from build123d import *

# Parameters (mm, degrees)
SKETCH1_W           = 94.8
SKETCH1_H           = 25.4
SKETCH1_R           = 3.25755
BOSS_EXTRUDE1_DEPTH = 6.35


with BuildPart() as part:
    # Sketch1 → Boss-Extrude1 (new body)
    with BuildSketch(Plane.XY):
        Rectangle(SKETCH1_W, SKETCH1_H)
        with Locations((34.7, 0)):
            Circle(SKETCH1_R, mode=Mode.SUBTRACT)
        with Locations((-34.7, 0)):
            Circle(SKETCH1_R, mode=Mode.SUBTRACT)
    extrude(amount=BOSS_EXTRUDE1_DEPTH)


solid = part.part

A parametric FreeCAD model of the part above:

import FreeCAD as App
import Part
import Sketcher

V = App.Vector
Q = App.Units.Quantity

doc = App.newDocument("Part")
params = doc.addObject("Spreadsheet::Sheet", "Params")
for row, (alias, value) in enumerate([
    ("sketch1_height", "1 in"),
    ("pad1_length", "0.25 in"),
], start=1):
    params.set(f"A{row}", alias)
    params.set(f"B{row}", "=" + value)
    params.setAlias(f"B{row}", alias)

body = doc.addObject("PartDesign::Body", "Body")

# Sketch on XY plane
sketch1 = doc.addObject("Sketcher::SketchObject", "Sketch")
body.addObject(sketch1)
sketch1.AttachmentSupport = (doc.XY_Plane, [""])
sketch1.MapMode = "FlatFace"
sketch1.addGeometry([
    Part.LineSegment(V(-47.4, 12.7, 0), V(-47.4, -12.7, 0)),  # 0
    Part.LineSegment(V(-47.4, -12.7, 0), V(47.4, -12.7, 0)),  # 1
    Part.LineSegment(V(47.4, -12.7, 0), V(47.4, 12.7, 0)),  # 2
    Part.LineSegment(V(47.4, 12.7, 0), V(-47.4, 12.7, 0)),  # 3
    Part.Circle(V(-34.7, 0, 0), V(0, 0, 1), 3.25755),  # 4
    Part.Circle(V(34.7, 0, 0), V(0, 0, 1), 3.25755),  # 5
], False)
sketch1.addConstraint([
    Sketcher.Constraint("Coincident", 0, 2, 1, 1),
    Sketcher.Constraint("Coincident", 1, 2, 2, 1),
    Sketcher.Constraint("Coincident", 2, 2, 3, 1),
    Sketcher.Constraint("Coincident", 3, 2, 0, 1),
    Sketcher.Constraint("Vertical", 0),
    Sketcher.Constraint("Horizontal", 1),
    Sketcher.Constraint("Vertical", 2),
    Sketcher.Constraint("Horizontal", 3),
    Sketcher.Constraint("Equal", 4, 5),
    Sketcher.Constraint("Symmetric", 4, 3, 5, 3, -1, 1),
    Sketcher.Constraint("Symmetric", 0, 2, 2, 2, -1, 1),
    Sketcher.Constraint("PointOnObject", 4, 3, -1),
    Sketcher.Constraint("DistanceY", 0, 2, 0, 1, Q("1 in")),
    Sketcher.Constraint("Diameter", 4, Q("0.2565 in")),
    Sketcher.Constraint("DistanceX", 0, 2, 4, 3, Q("0.5 in")),
    Sketcher.Constraint("DistanceX", 1, 1, 1, 2, 94.8),
])
sketch1.setExpression("Constraints[12]", "Params.sketch1_height")
pad1 = doc.addObject("PartDesign::Pad", "Pad")
body.addObject(pad1)
pad1.Profile = sketch1
pad1.setExpression("Length", "Params.pad1_length")

doc.recompute()
